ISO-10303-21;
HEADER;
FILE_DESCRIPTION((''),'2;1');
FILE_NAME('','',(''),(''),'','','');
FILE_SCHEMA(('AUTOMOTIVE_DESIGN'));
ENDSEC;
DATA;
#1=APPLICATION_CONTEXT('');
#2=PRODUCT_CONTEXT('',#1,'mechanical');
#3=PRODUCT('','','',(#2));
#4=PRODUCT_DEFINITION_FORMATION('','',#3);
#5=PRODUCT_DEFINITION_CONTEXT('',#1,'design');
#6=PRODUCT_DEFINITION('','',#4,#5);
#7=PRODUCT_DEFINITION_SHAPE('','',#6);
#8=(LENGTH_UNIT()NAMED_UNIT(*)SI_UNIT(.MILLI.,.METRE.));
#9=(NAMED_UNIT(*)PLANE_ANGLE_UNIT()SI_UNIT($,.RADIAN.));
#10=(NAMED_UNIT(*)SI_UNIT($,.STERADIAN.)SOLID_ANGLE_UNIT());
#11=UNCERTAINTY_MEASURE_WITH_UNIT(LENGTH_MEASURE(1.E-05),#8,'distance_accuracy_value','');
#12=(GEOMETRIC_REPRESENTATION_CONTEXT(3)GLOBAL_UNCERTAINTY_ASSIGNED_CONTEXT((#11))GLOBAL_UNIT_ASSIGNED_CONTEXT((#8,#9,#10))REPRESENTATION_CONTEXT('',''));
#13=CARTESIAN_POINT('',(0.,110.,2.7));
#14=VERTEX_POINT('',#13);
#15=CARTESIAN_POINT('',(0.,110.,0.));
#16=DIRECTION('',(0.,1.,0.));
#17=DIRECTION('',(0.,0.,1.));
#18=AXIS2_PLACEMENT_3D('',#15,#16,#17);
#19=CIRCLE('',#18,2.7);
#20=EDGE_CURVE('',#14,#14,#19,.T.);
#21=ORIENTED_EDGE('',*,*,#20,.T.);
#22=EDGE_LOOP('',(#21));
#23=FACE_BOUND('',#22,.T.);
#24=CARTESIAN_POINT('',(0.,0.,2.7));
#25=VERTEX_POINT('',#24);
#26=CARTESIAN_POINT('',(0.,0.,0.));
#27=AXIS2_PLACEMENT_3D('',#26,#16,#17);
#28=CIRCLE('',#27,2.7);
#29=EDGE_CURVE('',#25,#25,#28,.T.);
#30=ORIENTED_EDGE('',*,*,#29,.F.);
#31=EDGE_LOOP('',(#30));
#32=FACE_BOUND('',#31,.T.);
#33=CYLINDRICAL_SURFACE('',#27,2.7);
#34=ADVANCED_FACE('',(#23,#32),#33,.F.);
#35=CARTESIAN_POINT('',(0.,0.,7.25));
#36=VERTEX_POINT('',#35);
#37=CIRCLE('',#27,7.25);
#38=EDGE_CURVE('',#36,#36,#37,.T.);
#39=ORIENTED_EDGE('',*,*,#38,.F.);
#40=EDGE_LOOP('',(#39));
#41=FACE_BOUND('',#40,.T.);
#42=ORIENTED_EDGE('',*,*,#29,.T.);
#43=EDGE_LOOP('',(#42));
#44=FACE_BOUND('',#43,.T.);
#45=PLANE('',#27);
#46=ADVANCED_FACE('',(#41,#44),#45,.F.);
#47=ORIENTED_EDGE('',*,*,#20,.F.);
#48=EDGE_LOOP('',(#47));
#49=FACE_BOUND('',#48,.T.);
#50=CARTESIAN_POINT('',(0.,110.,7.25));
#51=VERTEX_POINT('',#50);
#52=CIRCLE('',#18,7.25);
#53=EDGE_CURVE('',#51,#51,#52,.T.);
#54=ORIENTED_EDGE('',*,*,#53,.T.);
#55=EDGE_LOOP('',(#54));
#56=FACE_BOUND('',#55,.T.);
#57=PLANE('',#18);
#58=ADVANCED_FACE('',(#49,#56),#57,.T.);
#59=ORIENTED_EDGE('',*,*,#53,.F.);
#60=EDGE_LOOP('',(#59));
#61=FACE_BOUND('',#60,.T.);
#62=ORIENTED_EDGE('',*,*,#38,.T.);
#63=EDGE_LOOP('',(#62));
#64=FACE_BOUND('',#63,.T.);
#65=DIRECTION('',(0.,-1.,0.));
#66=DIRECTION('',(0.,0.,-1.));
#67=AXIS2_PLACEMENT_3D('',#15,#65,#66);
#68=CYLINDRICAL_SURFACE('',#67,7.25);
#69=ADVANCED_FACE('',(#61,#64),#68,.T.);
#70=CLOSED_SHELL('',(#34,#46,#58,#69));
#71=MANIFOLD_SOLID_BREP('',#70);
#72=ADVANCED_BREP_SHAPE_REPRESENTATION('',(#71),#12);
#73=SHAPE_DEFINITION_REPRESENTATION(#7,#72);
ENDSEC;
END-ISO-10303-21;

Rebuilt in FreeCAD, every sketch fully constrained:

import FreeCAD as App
import Part
import Sketcher
from FreeCAD import Vector
Q = App.Units.Quantity

doc = App.newDocument("Part")
body = doc.addObject("PartDesign::Body", "Body")

sketch1 = body.newObject("Sketcher::SketchObject", "Sketch")
sketch1.AttachmentSupport = (doc.getObject("XZ_Plane"), [""])
sketch1.MapMode = "FlatFace"
sketch1.addGeometry(Part.Circle(Vector(0, 0, 0), Vector(0, 0, 1), 7.25), False)
sketch1.addConstraint([
    Sketcher.Constraint("Coincident", 0, 3, -1, 1),
    Sketcher.Constraint("Diameter", 0, Q("14.5 mm")),
])
pad1 = body.newObject("PartDesign::Pad", "Pad")
pad1.Profile = sketch1
pad1.Length = 110
pad1.Reversed = True

sketch2 = body.newObject("Sketcher::SketchObject", "Sketch001")
sketch2.AttachmentSupport = (doc.getObject("XZ_Plane"), [""])
sketch2.MapMode = "FlatFace"
sketch2.AttachmentOffset = App.Placement(Vector(0, 0, -110), App.Rotation())
sketch2.addGeometry(Part.Circle(Vector(0, 0, 0), Vector(0, 0, 1), 2.7), False)
sketch2.addConstraint([
    Sketcher.Constraint("Coincident", 0, 3, -1, 1),
    Sketcher.Constraint("Diameter", 0, Q("5.4 mm")),
])
pocket1 = body.newObject("PartDesign::Pocket", "Pocket")
pocket1.Profile = sketch2
pocket1.Length = 110
pocket1.Reversed = True

doc.recompute()
